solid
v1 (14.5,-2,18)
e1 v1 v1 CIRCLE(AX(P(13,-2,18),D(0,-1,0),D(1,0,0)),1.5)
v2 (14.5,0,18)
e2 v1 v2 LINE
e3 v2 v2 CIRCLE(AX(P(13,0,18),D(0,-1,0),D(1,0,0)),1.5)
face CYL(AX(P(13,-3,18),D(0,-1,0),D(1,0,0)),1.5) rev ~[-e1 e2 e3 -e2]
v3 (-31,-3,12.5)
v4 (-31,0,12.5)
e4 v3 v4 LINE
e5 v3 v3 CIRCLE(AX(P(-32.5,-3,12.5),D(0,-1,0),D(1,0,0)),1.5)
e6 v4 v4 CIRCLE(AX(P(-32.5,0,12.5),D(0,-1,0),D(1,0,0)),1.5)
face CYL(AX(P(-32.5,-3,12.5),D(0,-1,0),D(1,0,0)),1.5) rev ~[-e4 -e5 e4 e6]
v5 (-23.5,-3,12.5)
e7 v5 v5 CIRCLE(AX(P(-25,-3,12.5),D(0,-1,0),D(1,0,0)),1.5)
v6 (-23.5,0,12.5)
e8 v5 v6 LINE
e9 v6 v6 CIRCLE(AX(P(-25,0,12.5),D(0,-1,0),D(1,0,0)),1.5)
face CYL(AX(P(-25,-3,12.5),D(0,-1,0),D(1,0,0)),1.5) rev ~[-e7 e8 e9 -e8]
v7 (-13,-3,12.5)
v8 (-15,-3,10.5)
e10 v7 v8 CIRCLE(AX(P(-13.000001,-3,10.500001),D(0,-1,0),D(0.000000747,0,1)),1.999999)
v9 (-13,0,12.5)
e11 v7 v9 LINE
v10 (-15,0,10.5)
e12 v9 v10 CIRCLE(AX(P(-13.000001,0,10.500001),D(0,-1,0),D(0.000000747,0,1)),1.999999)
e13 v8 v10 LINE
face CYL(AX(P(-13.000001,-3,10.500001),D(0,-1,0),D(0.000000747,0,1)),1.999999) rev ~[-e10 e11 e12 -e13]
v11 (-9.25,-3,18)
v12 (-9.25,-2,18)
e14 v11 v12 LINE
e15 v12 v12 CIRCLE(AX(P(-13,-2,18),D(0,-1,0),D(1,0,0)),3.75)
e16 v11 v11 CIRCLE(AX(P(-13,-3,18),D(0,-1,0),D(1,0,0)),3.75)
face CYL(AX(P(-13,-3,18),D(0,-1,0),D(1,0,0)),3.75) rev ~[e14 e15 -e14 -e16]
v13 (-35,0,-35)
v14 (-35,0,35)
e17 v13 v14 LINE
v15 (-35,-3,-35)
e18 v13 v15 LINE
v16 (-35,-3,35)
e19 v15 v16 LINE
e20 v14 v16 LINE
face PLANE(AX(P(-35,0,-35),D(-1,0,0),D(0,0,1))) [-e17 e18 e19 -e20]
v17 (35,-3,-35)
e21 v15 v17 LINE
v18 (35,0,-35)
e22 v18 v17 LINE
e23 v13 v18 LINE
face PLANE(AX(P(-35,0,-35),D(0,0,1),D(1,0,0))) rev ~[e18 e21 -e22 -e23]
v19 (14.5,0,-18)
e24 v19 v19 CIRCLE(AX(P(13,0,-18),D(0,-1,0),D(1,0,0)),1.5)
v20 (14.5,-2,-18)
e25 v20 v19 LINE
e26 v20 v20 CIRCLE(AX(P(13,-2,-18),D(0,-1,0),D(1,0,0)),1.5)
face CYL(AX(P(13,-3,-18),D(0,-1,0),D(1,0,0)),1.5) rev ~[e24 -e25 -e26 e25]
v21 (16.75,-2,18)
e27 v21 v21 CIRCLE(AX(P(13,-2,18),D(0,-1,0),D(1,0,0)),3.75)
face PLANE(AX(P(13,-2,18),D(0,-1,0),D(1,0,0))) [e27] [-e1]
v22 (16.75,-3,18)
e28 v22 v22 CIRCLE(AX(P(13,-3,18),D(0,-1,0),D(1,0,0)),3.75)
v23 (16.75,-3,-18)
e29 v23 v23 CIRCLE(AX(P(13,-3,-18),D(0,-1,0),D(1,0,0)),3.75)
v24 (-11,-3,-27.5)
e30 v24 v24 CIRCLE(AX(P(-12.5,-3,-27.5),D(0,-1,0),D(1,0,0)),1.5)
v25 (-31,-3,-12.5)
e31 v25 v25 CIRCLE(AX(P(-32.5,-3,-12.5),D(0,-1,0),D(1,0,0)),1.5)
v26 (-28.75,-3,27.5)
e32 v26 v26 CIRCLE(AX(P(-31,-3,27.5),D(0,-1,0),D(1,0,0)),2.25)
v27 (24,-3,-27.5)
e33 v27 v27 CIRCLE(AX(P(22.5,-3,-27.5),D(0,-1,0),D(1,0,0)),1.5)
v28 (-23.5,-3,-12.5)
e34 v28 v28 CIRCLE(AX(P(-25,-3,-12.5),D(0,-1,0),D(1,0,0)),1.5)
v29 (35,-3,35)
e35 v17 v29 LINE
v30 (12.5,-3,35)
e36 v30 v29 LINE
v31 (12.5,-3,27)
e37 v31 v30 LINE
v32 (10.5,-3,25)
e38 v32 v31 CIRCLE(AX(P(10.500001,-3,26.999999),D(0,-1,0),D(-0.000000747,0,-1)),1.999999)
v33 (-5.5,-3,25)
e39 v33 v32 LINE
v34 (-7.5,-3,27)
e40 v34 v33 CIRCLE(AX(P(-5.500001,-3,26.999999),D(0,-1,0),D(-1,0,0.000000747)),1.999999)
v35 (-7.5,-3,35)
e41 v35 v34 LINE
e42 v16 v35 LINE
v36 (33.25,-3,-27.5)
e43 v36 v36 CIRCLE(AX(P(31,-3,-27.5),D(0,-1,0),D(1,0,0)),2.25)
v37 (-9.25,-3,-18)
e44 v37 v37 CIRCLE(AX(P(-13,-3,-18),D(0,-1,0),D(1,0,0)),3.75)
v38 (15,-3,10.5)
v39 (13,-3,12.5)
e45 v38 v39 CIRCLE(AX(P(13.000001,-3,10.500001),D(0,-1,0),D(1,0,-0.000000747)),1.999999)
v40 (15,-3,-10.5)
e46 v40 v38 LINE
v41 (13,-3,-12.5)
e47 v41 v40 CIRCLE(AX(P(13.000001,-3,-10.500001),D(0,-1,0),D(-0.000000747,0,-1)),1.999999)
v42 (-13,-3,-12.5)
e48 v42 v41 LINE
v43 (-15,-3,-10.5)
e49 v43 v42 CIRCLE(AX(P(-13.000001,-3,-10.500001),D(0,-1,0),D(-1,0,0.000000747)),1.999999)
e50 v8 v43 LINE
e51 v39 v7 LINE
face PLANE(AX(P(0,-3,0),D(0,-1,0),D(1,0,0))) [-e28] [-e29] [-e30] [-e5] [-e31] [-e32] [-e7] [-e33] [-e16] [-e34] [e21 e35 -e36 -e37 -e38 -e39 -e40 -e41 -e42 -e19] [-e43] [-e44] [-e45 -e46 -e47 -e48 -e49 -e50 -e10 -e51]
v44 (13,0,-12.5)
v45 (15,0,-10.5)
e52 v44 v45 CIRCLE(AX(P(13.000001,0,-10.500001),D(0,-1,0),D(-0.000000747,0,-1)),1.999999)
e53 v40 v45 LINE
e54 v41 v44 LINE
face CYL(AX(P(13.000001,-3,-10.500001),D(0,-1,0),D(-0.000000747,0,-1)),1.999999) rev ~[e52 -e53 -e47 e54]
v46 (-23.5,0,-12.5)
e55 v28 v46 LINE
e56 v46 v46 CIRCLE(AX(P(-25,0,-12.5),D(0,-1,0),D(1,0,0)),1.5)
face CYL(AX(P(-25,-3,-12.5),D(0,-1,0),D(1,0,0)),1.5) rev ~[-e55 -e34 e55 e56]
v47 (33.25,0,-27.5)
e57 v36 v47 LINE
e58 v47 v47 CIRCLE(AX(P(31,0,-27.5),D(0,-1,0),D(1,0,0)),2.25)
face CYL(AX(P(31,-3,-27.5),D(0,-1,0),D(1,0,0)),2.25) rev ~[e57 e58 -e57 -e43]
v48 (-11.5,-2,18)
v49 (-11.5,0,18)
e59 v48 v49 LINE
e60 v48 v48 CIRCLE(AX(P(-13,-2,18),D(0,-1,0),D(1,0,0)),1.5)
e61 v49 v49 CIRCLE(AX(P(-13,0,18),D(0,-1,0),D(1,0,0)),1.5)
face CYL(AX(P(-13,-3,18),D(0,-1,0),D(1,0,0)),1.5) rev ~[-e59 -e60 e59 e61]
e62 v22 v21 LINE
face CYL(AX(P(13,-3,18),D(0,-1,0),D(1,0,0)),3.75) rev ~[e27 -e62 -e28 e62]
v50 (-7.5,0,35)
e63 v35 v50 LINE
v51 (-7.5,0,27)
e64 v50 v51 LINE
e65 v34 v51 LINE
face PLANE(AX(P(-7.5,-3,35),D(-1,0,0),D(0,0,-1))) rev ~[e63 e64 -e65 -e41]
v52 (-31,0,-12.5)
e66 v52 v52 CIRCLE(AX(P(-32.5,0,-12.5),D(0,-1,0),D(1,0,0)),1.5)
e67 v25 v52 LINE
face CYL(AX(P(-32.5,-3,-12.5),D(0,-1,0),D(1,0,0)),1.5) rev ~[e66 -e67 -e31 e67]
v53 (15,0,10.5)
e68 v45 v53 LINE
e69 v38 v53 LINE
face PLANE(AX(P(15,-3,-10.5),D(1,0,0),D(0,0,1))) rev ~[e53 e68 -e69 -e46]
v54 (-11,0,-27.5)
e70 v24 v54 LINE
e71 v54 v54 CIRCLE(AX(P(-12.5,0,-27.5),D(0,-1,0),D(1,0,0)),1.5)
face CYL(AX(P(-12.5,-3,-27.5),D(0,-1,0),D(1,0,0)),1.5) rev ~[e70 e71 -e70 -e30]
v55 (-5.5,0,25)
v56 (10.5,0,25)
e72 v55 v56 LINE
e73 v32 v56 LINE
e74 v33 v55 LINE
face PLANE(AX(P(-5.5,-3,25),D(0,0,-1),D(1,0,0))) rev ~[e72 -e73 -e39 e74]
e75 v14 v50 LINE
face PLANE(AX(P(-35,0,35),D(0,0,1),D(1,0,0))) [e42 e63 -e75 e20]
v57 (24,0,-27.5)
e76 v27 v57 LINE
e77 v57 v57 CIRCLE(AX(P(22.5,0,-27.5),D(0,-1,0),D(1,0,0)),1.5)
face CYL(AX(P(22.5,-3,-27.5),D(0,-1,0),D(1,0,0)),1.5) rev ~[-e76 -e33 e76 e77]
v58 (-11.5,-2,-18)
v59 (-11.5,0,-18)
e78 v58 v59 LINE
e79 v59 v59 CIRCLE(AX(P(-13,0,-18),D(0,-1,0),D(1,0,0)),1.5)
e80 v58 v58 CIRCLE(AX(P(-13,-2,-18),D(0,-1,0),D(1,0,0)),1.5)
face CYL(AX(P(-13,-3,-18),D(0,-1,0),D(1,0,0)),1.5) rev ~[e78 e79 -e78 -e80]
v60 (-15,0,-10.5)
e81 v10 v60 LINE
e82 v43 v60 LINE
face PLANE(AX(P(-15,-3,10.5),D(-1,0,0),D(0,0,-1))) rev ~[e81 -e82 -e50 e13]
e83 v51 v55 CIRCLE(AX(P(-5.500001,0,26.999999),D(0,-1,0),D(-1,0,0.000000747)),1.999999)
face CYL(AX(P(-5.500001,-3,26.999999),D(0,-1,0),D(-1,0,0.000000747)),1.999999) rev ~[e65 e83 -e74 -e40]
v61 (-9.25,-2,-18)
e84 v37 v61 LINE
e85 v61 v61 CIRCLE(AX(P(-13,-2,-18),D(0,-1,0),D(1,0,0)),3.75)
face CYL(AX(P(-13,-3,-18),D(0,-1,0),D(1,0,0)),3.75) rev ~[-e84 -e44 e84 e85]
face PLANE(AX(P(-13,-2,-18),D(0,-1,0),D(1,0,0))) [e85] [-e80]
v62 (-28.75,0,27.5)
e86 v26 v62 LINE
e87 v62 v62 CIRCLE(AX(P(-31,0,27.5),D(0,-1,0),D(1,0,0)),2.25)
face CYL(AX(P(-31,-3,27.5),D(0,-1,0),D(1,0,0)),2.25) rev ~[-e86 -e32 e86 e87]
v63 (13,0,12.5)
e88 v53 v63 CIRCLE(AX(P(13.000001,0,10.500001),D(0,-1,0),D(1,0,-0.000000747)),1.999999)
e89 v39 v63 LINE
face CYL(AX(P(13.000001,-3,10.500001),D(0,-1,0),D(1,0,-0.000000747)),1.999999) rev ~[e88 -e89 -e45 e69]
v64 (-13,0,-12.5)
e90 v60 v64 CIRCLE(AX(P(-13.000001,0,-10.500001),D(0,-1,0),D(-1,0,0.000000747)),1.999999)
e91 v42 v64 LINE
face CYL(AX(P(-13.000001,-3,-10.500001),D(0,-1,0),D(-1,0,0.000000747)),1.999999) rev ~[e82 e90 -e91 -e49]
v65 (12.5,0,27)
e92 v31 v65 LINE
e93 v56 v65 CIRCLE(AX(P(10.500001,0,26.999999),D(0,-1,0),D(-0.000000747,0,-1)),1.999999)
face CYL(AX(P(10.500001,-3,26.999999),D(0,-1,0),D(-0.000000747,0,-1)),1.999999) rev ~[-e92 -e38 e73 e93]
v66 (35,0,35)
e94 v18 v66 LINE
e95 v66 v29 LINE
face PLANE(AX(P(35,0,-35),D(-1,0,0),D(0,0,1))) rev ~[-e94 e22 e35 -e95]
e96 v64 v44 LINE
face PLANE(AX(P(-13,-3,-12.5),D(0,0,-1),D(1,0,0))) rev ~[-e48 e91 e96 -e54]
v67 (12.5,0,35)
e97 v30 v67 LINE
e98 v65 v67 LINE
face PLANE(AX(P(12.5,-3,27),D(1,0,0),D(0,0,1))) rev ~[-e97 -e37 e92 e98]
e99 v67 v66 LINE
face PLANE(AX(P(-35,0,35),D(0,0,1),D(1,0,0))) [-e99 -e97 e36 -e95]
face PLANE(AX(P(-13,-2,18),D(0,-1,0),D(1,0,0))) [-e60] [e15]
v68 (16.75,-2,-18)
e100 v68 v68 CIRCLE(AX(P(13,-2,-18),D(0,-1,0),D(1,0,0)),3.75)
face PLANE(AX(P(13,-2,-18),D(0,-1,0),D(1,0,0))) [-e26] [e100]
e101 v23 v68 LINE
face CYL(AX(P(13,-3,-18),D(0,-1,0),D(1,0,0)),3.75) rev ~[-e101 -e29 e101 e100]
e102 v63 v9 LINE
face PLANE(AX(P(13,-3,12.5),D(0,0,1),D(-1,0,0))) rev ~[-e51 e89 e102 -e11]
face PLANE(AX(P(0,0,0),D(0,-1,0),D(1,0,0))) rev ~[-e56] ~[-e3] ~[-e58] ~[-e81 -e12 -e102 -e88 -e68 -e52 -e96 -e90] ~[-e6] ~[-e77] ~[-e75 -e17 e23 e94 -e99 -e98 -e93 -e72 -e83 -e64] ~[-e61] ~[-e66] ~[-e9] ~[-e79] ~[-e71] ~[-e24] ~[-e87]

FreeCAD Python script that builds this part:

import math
import FreeCAD as App
import Part
import Sketcher

V = App.Vector
Q = App.Units.Quantity

doc = App.newDocument("Part")
body = doc.addObject("PartDesign::Body", "Body")

sketch1 = doc.addObject("Sketcher::SketchObject", "Sketch")
body.addObject(sketch1)
sketch1.AttachmentSupport = (doc.XZ_Plane, [""])
sketch1.MapMode = "FlatFace"
sketch1.addGeometry(Part.LineSegment(V(-35, 35, 0), V(-35, -35, 0)), False)
sketch1.addGeometry(Part.LineSegment(V(-35, -35, 0), V(35, -35, 0)), False)
sketch1.addGeometry(Part.LineSegment(V(35, -35, 0), V(35, 35, 0)), False)
sketch1.addGeometry(Part.LineSegment(V(35, 35, 0), V(-35, 35, 0)), False)
sketch1.addConstraint(Sketcher.Constraint("Coincident", 0, 2, 1, 1))
sketch1.addConstraint(Sketcher.Constraint("Coincident", 1, 2, 2, 1))
sketch1.addConstraint(Sketcher.Constraint("Coincident", 2, 2, 3, 1))
sketch1.addConstraint(Sketcher.Constraint("Coincident", 3, 2, 0, 1))
sketch1.addConstraint(Sketcher.Constraint("Vertical", 0))
sketch1.addConstraint(Sketcher.Constraint("Horizontal", 1))
sketch1.addConstraint(Sketcher.Constraint("Vertical", 2))
sketch1.addConstraint(Sketcher.Constraint("Horizontal", 3))
sketch1.addConstraint(Sketcher.Constraint("Symmetric", 0, 2, 2, 2, -1, 1))
sketch1.addConstraint(Sketcher.Constraint("Equal", 3, 0))
sketch1.addConstraint(Sketcher.Constraint("DistanceX", 1, 1, 1, 2, Q("70 mm")))
pad1 = doc.addObject("PartDesign::Pad", "Pad")
body.addObject(pad1)
pad1.Profile = sketch1
pad1.Length = 3

sketch2 = doc.addObject("Sketcher::SketchObject", "Sketch001")
body.addObject(sketch2)
sketch2.AttachmentSupport = (doc.XZ_Plane, [""])
sketch2.MapMode = "FlatFace"
sketch2.AttachmentOffset = App.Placement(V(0, 0, 3), App.Rotation())
sketch2.addGeometry(Part.Circle(V(-31, 27.5, 0), V(0, 0, 1), 2.2), False)
sketch2.addGeometry(Part.Circle(V(31, -27.5, 0), V(0, 0, 1), 2.2), False)
sketch2.addGeometry(Part.Circle(V(-13, 18, 0), V(0, 0, 1), 1.5), False)
sketch2.addGeometry(Part.Circle(V(-13, -18, 0), V(0, 0, 1), 1.5), False)
sketch2.addGeometry(Part.Circle(V(13, 18, 0), V(0, 0, 1), 1.5), False)
sketch2.addGeometry(Part.Circle(V(13, -18, 0), V(0, 0, 1), 1.5), False)
sketch2.addGeometry(Part.LineSegment(V(-13, -12.5, 0), V(13, -12.5, 0)), False)
sketch2.addGeometry(Part.ArcOfCircle(Part.Circle(V(13, -10.5, 0), V(0, 0, 1), 2), math.radians(-90), math.radians(0)), False)
sketch2.addGeometry(Part.LineSegment(V(15, -10.5, 0), V(15, 10.5, 0)), False)
sketch2.addGeometry(Part.ArcOfCircle(Part.Circle(V(13, 10.5, 0), V(0, 0, 1), 2), math.radians(0), math.radians(90)), False)
sketch2.addGeometry(Part.LineSegment(V(13, 12.5, 0), V(-13, 12.5, 0)), False)
sketch2.addGeometry(Part.ArcOfCircle(Part.Circle(V(-13, 10.5, 0), V(0, 0, 1), 2), math.radians(90), math.radians(180)), False)
sketch2.addGeometry(Part.LineSegment(V(-15, 10.5, 0), V(-15, -10.5, 0)), False)
sketch2.addGeometry(Part.ArcOfCircle(Part.Circle(V(-13, -10.5, 0), V(0, 0, 1), 2), math.radians(180), math.radians(270)), False)
sketch2.addGeometry(Part.LineSegment(V(12.5, 35, 0), V(-7.5, 35, 0)), False)
sketch2.addGeometry(Part.LineSegment(V(-7.5, 35, 0), V(-7.5, 27, 0)), False)
sketch2.addGeometry(Part.ArcOfCircle(Part.Circle(V(-5.5, 27, 0), V(0, 0, 1), 2), math.radians(180), math.radians(270)), False)
sketch2.addGeometry(Part.LineSegment(V(-5.5, 25, 0), V(10.5, 25, 0)), False)
sketch2.addGeometry(Part.ArcOfCircle(Part.Circle(V(10.5, 27, 0), V(0, 0, 1), 2), math.radians(-90), math.radians(0)), False)
sketch2.addGeometry(Part.LineSegment(V(12.5, 27, 0), V(12.5, 35, 0)), False)
sketch2.addConstraint(Sketcher.Constraint("Tangent", 6, 2, 7, 1))
sketch2.addConstraint(Sketcher.Constraint("Tangent", 7, 2, 8, 1))
sketch2.addConstraint(Sketcher.Constraint("Tangent", 8, 2, 9, 1))
sketch2.addConstraint(Sketcher.Constraint("Tangent", 9, 2, 10, 1))
sketch2.addConstraint(Sketcher.Constraint("Tangent", 10, 2, 11, 1))
sketch2.addConstraint(Sketcher.Constraint("Tangent", 11, 2, 12, 1))
sketch2.addConstraint(Sketcher.Constraint("Tangent", 12, 2, 13, 1))
sketch2.addConstraint(Sketcher.Constraint("Tangent", 13, 2, 6, 1))
sketch2.addConstraint(Sketcher.Constraint("Coincident", 14, 2, 15, 1))
sketch2.addConstraint(Sketcher.Constraint("Tangent", 15, 2, 16, 1))
sketch2.addConstraint(Sketcher.Constraint("Tangent", 16, 2, 17, 1))
sketch2.addConstraint(Sketcher.Constraint("Tangent", 17, 2, 18, 1))
sketch2.addConstraint(Sketcher.Constraint("Tangent", 18, 2, 19, 1))
sketch2.addConstraint(Sketcher.Constraint("Coincident", 19, 2, 14, 1))
sketch2.addConstraint(Sketcher.Constraint("Horizontal", 6))
sketch2.addConstraint(Sketcher.Constraint("Vertical", 8))
sketch2.addConstraint(Sketcher.Constraint("Horizontal", 10))
sketch2.addConstraint(Sketcher.Constraint("Vertical", 12))
sketch2.addConstraint(Sketcher.Constraint("Horizontal", 14))
sketch2.addConstraint(Sketcher.Constraint("Vertical", 15))
sketch2.addConstraint(Sketcher.Constraint("Horizontal", 17))
sketch2.addConstraint(Sketcher.Constraint("Vertical", 19))
sketch2.addConstraint(Sketcher.Constraint("Equal", 0, 1))
sketch2.addConstraint(Sketcher.Constraint("Equal", 2, 3))
sketch2.addConstraint(Sketcher.Constraint("Equal", 3, 4))
sketch2.addConstraint(Sketcher.Constraint("Equal", 4, 5))
sketch2.addConstraint(Sketcher.Constraint("Equal", 7, 9))
sketch2.addConstraint(Sketcher.Constraint("Equal", 9, 11))
sketch2.addConstraint(Sketcher.Constraint("Equal", 11, 13))
sketch2.addConstraint(Sketcher.Constraint("Equal", 13, 16))
sketch2.addConstraint(Sketcher.Constraint("Equal", 16, 18))
sketch2.addConstraint(Sketcher.Constraint("Symmetric", 0, 3, 1, 3, -1, 1))
sketch2.addConstraint(Sketcher.Constraint("Symmetric", 3, 3, 4, 3, -1, 1))
sketch2.addConstraint(Sketcher.Constraint("Symmetric", 2, 3, 5, 3, -1, 1))
sketch2.addConstraint(Sketcher.Constraint("Symmetric", 7, 3, 11, 3, -1, 1))
sketch2.addConstraint(Sketcher.Constraint("Symmetric", 2, 3, 4, 3, -2))
sketch2.addConstraint(Sketcher.Constraint("Vertical", 5, 3, 7, 3))
sketch2.addConstraint(Sketcher.Constraint("Diameter", 2, Q("3 mm")))
sketch2.addConstraint(Sketcher.Constraint("Radius", 7, Q("1.999999 mm")))
sketch2.addConstraint(Sketcher.Constraint("Diameter", 0, Q("4.5 mm")))
sketch2.addConstraint(Sketcher.Constraint("DistanceX", 6, 1, 6, 2, Q("26 mm")))
sketch2.addConstraint(Sketcher.Constraint("DistanceX", 14, 2, 14, 1, Q("20 mm")))
sketch2.addConstraint(Sketcher.Constraint("DistanceY", 8, 1, 8, 2, Q("21 mm")))
sketch2.addConstraint(Sketcher.Constraint("DistanceY", 15, 2, 15, 1, Q("8 mm")))
sketch2.addConstraint(Sketcher.Constraint("DistanceX", 0, 3, -1, 1, Q("31 mm")))
sketch2.addConstraint(Sketcher.Constraint("DistanceY", -1, 1, 2, 3, Q("18 mm")))
sketch2.addConstraint(Sketcher.Constraint("DistanceY", -1, 1, 16, 3, Q("26.999999 mm")))
sketch2.addConstraint(Sketcher.Constraint("DistanceY", 1, 3, 0, 3, Q("55 mm")))
sketch2.addConstraint(Sketcher.Constraint("DistanceX", 16, 3, -1, 1, Q("5.500001 mm")))
pocket1 = doc.addObject("PartDesign::Pocket", "Pocket")
body.addObject(pocket1)
pocket1.Profile = sketch2
pocket1.Type = "ThroughAll"

sketch3 = doc.addObject("Sketcher::SketchObject", "Sketch002")
body.addObject(sketch3)
sketch3.AttachmentSupport = (doc.XZ_Plane, [""])
sketch3.MapMode = "FlatFace"
sketch3.AttachmentOffset = App.Placement(V(0, 0, 3), App.Rotation())
sketch3.addGeometry(Part.Circle(V(-13, 18, 0), V(0, 0, 1), 3.8), False)
sketch3.addGeometry(Part.Circle(V(13, 18, 0), V(0, 0, 1), 3.8), False)
sketch3.addGeometry(Part.Circle(V(-13, -18, 0), V(0, 0, 1), 3.8), False)
sketch3.addGeometry(Part.Circle(V(13, -18, 0), V(0, 0, 1), 3.8), False)
sketch3.addConstraint(Sketcher.Constraint("Equal", 0, 1))
sketch3.addConstraint(Sketcher.Constraint("Equal", 1, 2))
sketch3.addConstraint(Sketcher.Constraint("Equal", 2, 3))
sketch3.addConstraint(Sketcher.Constraint("Symmetric", 1, 3, 2, 3, -1, 1))
sketch3.addConstraint(Sketcher.Constraint("Symmetric", 0, 3, 3, 3, -1, 1))
sketch3.addConstraint(Sketcher.Constraint("Symmetric", 0, 3, 1, 3, -2))
sketch3.addConstraint(Sketcher.Constraint("Diameter", 0, Q("7.5 mm")))
sketch3.addConstraint(Sketcher.Constraint("DistanceX", 0, 3, -1, 1, Q("13 mm")))
sketch3.addConstraint(Sketcher.Constraint("DistanceY", -1, 1, 0, 3, Q("18 mm")))
pocket2 = doc.addObject("PartDesign::Pocket", "Pocket001")
body.addObject(pocket2)
pocket2.Profile = sketch3
pocket2.Length = 1

sketch4 = doc.addObject("Sketcher::SketchObject", "Sketch003")
body.addObject(sketch4)
sketch4.AttachmentSupport = (doc.XZ_Plane, [""])
sketch4.MapMode = "FlatFace"
sketch4.AttachmentOffset = App.Placement(V(0, 0, 3), App.Rotation())
sketch4.addGeometry(Part.Circle(V(-12.5, -27.5, 0), V(0, 0, 1), 1.5), False)
sketch4.addGeometry(Part.Circle(V(22.5, -27.5, 0), V(0, 0, 1), 1.5), False)
sketch4.addConstraint(Sketcher.Constraint("Equal", 0, 1))
sketch4.addConstraint(Sketcher.Constraint("Horizontal", 0, 3, 1, 3))
sketch4.addConstraint(Sketcher.Constraint("Diameter", 0, Q("3 mm")))
sketch4.addConstraint(Sketcher.Constraint("DistanceX", 0, 3, 1, 3, Q("35 mm")))
sketch4.addConstraint(Sketcher.Constraint("DistanceX", 0, 3, -1, 1, Q("12.5 mm")))
sketch4.addConstraint(Sketcher.Constraint("DistanceY", 0, 3, -1, 1, Q("27.5 mm")))
pocket3 = doc.addObject("PartDesign::Pocket", "Pocket002")
body.addObject(pocket3)
pocket3.Profile = sketch4
pocket3.Type = "ThroughAll"

sketch5 = doc.addObject("Sketcher::SketchObject", "Sketch004")
body.addObject(sketch5)
sketch5.AttachmentSupport = (doc.XZ_Plane, [""])
sketch5.MapMode = "FlatFace"
sketch5.AttachmentOffset = App.Placement(V(0, 0, 3), App.Rotation())
sketch5.addGeometry(Part.Circle(V(-25, -12.5, 0), V(0, 0, 1), 1.5), False)
sketch5.addGeometry(Part.Circle(V(-25, 12.5, 0), V(0, 0, 1), 1.5), False)
sketch5.addGeometry(Part.Circle(V(-32.5, -12.5, 0), V(0, 0, 1), 1.5), False)
sketch5.addGeometry(Part.Circle(V(-32.5, 12.5, 0), V(0, 0, 1), 1.5), False)
sketch5.addConstraint(Sketcher.Constraint("Equal", 0, 1))
sketch5.addConstraint(Sketcher.Constraint("Equal", 1, 2))
sketch5.addConstraint(Sketcher.Constraint("Equal", 2, 3))
sketch5.addConstraint(Sketcher.Constraint("Symmetric", 0, 3, 1, 3, -1))
sketch5.addConstraint(Sketcher.Constraint("Symmetric", 2, 3, 3, 3, -1))
sketch5.addConstraint(Sketcher.Constraint("Horizontal", 0, 3, 2, 3))
sketch5.addConstraint(Sketcher.Constraint("Diameter", 0, Q("3 mm")))
sketch5.addConstraint(Sketcher.Constraint("DistanceX", 0, 3, -1, 1, Q("25 mm")))
sketch5.addConstraint(Sketcher.Constraint("DistanceY", 0, 3, 1, 3, Q("25 mm")))
sketch5.addConstraint(Sketcher.Constraint("DistanceX", 2, 3, -1, 1, Q("32.5 mm")))
pocket4 = doc.addObject("PartDesign::Pocket", "Pocket003")
body.addObject(pocket4)
pocket4.Profile = sketch5
pocket4.Type = "ThroughAll"

doc.recompute()
